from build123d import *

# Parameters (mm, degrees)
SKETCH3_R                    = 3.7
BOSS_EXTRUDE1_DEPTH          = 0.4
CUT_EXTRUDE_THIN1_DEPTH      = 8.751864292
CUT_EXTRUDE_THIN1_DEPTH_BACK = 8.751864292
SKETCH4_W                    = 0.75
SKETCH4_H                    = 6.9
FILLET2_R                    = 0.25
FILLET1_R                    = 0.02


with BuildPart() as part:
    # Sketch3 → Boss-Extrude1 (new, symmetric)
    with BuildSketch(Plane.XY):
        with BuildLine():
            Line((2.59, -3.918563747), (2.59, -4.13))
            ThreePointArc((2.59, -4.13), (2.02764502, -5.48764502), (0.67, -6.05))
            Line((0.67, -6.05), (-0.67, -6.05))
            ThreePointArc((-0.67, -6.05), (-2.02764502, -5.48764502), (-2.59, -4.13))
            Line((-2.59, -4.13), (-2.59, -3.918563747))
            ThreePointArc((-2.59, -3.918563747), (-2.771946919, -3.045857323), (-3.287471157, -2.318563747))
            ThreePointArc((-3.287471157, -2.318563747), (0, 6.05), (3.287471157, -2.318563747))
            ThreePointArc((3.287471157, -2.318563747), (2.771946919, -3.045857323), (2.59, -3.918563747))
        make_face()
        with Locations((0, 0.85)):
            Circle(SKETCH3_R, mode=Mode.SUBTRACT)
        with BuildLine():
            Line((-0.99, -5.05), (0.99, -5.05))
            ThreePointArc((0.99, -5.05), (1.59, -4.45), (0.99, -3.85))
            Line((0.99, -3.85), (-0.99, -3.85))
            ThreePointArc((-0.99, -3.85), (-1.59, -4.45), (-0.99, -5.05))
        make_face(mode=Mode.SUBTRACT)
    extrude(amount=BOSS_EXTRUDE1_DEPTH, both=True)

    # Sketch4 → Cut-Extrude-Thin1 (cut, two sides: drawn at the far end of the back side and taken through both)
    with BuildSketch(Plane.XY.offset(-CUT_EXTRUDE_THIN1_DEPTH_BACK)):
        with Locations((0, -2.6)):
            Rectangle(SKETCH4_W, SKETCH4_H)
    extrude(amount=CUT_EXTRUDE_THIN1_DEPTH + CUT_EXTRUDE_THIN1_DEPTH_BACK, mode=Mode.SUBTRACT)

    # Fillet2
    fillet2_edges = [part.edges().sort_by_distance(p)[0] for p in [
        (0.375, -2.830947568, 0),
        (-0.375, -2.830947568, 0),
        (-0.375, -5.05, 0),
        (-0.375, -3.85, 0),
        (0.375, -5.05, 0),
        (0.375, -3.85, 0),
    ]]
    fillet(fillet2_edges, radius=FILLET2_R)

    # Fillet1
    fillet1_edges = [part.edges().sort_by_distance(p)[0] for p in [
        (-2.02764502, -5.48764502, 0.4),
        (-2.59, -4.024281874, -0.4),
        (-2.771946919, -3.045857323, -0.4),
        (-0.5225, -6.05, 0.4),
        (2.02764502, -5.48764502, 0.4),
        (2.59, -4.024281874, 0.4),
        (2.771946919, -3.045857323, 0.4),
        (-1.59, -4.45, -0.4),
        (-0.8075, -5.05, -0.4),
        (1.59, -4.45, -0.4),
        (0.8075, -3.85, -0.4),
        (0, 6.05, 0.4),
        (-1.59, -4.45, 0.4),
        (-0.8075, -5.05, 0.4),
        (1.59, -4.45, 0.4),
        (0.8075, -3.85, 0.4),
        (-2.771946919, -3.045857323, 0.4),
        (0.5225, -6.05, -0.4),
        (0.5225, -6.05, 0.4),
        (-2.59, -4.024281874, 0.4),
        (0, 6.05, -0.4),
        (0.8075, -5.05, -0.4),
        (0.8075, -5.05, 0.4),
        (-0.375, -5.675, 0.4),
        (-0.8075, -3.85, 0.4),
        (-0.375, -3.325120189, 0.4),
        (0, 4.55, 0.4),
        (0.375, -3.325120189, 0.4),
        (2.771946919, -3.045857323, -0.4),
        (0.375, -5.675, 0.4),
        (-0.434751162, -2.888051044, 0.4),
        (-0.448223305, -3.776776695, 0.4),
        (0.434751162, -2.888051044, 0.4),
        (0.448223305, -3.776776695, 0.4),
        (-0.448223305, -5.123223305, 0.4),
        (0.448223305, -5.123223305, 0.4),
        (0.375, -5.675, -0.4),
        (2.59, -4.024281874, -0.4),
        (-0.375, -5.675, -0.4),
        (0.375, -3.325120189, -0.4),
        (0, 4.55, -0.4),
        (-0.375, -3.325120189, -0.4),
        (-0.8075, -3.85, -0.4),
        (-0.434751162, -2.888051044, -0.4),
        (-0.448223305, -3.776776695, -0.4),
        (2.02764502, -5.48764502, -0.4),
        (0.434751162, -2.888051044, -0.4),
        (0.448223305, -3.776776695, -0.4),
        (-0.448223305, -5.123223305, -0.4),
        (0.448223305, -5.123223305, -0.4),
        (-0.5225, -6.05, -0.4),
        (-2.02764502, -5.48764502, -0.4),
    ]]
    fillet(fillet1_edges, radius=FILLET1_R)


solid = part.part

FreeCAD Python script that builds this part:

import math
import FreeCAD as App
import Part
import Sketcher
from FreeCAD import Vector


def edges_at(feature, points):
    """Names of the edges that pass closest to the given points."""
    edges = feature.Shape.Edges
    near = lambda p: min(range(len(edges)), key=lambda i: edges[i].distToShape(Part.Vertex(*p))[0])
    return sorted({f"Edge{near(p) + 1}" for p in points})


def add_polygon(sketch, points):
    """Adds a closed chain of lines whose ends are joined by coincident constraints."""
    first, n = sketch.GeometryCount, len(points)
    for a, b in zip(points, points[1:] + points[:1]):
        sketch.addGeometry(Part.LineSegment(App.Vector(*a, 0), App.Vector(*b, 0)), False)
    for i in range(n):
        sketch.addConstraint(Sketcher.Constraint("Coincident", first + i, 2, first + (i + 1) % n, 1))

doc = App.newDocument("Part")
body = doc.addObject("PartDesign::Body", "Body")

sketch1 = body.newObject("Sketcher::SketchObject", "Sketch")
sketch1.AttachmentSupport = (doc.getObject("XY_Plane"), [""])
sketch1.MapMode = "FlatFace"
sketch1.addGeometry(Part.LineSegment(Vector(2.59, -4.13, 0), Vector(2.59, -3.92, 0)), False)
sketch1.addGeometry(Part.ArcOfCircle(Part.Circle(Vector(4.77, -3.92, 0), Vector(0, 0, 1), 2.18), math.radians(133), math.radians(180)), False)
sketch1.addGeometry(Part.ArcOfCircle(Part.Circle(Vector(0, 1.22, 0), Vector(0, 0, 1), 4.83), math.radians(-47), math.radians(227)), False)
sketch1.addGeometry(Part.ArcOfCircle(Part.Circle(Vector(-4.77, -3.92, 0), Vector(0, 0, 1), 2.18), math.radians(0), math.radians(47)), False)
sketch1.addGeometry(Part.LineSegment(Vector(-2.59, -3.92, 0), Vector(-2.59, -4.13, 0)), False)
sketch1.addGeometry(Part.ArcOfCircle(Part.Circle(Vector(-0.67, -4.13, 0), Vector(0, 0, 1), 1.92), math.radians(180), math.radians(270)), False)
sketch1.addGeometry(Part.LineSegment(Vector(-0.67, -6.05, 0), Vector(0.67, -6.05, 0)), False)
sketch1.addGeometry(Part.ArcOfCircle(Part.Circle(Vector(0.67, -4.13, 0), Vector(0, 0, 1), 1.92), math.radians(-90), math.radians(0)), False)
sketch1.addGeometry(Part.ArcOfCircle(Part.Circle(Vector(-0.99, -4.45, 0), Vector(0, 0, 1), 0.6), math.radians(90), math.radians(270)), False)
sketch1.addGeometry(Part.LineSegment(Vector(-0.99, -3.85, 0), Vector(0.99, -3.85, 0)), False)
sketch1.addGeometry(Part.ArcOfCircle(Part.Circle(Vector(0.99, -4.45, 0), Vector(0, 0, 1), 0.6), math.radians(-90), math.radians(90)), False)
sketch1.addGeometry(Part.LineSegment(Vector(0.99, -5.05, 0), Vector(-0.99, -5.05, 0)), False)
sketch1.addGeometry(Part.Circle(Vector(0, 0.85, 0), Vector(0, 0, 1), 3.7), False)
sketch1.addConstraint(Sketcher.Constraint("Tangent", 0, 2, 1, 2))
sketch1.addConstraint(Sketcher.Constraint("Tangent", 1, 1, 2, 1))
sketch1.addConstraint(Sketcher.Constraint("Tangent", 2, 2, 3, 2))
sketch1.addConstraint(Sketcher.Constraint("Tangent", 3, 1, 4, 1))
sketch1.addConstraint(Sketcher.Constraint("Tangent", 4, 2, 5, 1))
sketch1.addConstraint(Sketcher.Constraint("Tangent", 5, 2, 6, 1))
sketch1.addConstraint(Sketcher.Constraint("Tangent", 6, 2, 7, 1))
sketch1.addConstraint(Sketcher.Constraint("Tangent", 7, 2, 0, 1))
sketch1.addConstraint(Sketcher.Constraint("Tangent", 8, 1, 9, 1))
sketch1.addConstraint(Sketcher.Constraint("Tangent", 9, 2, 10, 2))
sketch1.addConstraint(Sketcher.Constraint("Tangent", 10, 1, 11, 1))
sketch1.addConstraint(Sketcher.Constraint("Tangent", 11, 2, 8, 2))
sketch1.addConstraint(Sketcher.Constraint("Vertical", 0))
sketch1.addConstraint(Sketcher.Constraint("Vertical", 4))
sketch1.addConstraint(Sketcher.Constraint("Horizontal", 6))
sketch1.addConstraint(Sketcher.Constraint("Horizontal", 9))
sketch1.addConstraint(Sketcher.Constraint("Horizontal", 11))
sketch1.addConstraint(Sketcher.Constraint("Equal", 1, 3))
sketch1.addConstraint(Sketcher.Constraint("Equal", 5, 7))
sketch1.addConstraint(Sketcher.Constraint("Symmetric", 1, 3, 3, 3, -2))
sketch1.addConstraint(Sketcher.Constraint("PointOnObject", 12, 3, -2))
sketch1.addConstraint(Sketcher.Constraint("Diameter", 12, 7.4))
sketch1.addConstraint(Sketcher.Constraint("Radius", 8, 0.6))
sketch1.addConstraint(Sketcher.Constraint("Radius", 2, 4.83))
sketch1.addConstraint(Sketcher.Constraint("Radius", 5, 1.92))
sketch1.addConstraint(Sketcher.Constraint("DistanceY", 6, 2, 10, 1, 1.0))
sketch1.addConstraint(Sketcher.Constraint("DistanceX", 6, 1, 6, 2, 1.34))
sketch1.addConstraint(Sketcher.Constraint("DistanceX", 9, 1, 9, 2, 1.98))
sketch1.addConstraint(Sketcher.Constraint("DistanceY", 8, 3, 12, 3, 5.3))
sketch1.addConstraint(Sketcher.Constraint("DistanceX", 10, 3, 0, 2, 1.6))
sketch1.addConstraint(Sketcher.Constraint("DistanceY", 0, 2, 1, 1, 1.6))
sketch1.addConstraint(Sketcher.Constraint("DistanceY", -1, 1, 2, 3, 1.22))
sketch1.addConstraint(Sketcher.Constraint("DistanceY", 5, 3, -1, 1, 4.13))
pad1 = body.newObject("PartDesign::Pad", "Pad")
pad1.Profile = sketch1
pad1.Length = 0.8
pad1.Midplane = True

sketch2 = body.newObject("Sketcher::SketchObject", "Sketch001")
sketch2.AttachmentSupport = (doc.getObject("XY_Plane"), [""])
sketch2.MapMode = "FlatFace"
add_polygon(sketch2, [(-0.4, 0.8), (-0.4, -6), (0.4, -6), (0.4, 0.8)])
sketch2.addConstraint(Sketcher.Constraint("Vertical", 0))
sketch2.addConstraint(Sketcher.Constraint("Horizontal", 1))
sketch2.addConstraint(Sketcher.Constraint("Vertical", 2))
sketch2.addConstraint(Sketcher.Constraint("Horizontal", 3))
sketch2.addConstraint(Sketcher.Constraint("DistanceY", 0, 2, 0, 1, 6.9))
sketch2.addConstraint(Sketcher.Constraint("DistanceX", 1, 1, 1, 2, 0.75))
sketch2.addConstraint(Sketcher.Constraint("DistanceY", 0, 2, -1, 1, 6.05))
sketch2.addConstraint(Sketcher.Constraint("DistanceX", 0, 2, -1, 1, 0.375))
pocket1 = body.newObject("PartDesign::Pocket", "Pocket")
pocket1.Profile = sketch2
pocket1.Type = "ThroughAll"
pocket1.Midplane = True
doc.recompute()

fillet = body.newObject("PartDesign::Fillet", "Fillet")
fillet.Base = (pocket1, edges_at(pocket1, [
    (0.375, -2.831, 0),
    (-0.375, -2.831, 0),
    (-0.375, -5.05, 0),
    (-0.375, -3.85, 0),
    (0.375, -5.05, 0),
    (0.375, -3.85, 0),
]))
fillet.Radius = 0.25
doc.recompute()

fillet2 = body.newObject("PartDesign::Fillet", "Fillet001")
fillet2.Base = (fillet, edges_at(fillet, [
    (-2.028, -5.488, 0.4),
    (-2.59, -4.024, -0.4),
    (-2.772, -3.046, -0.4),
    (-0.522, -6.05, 0.4),
    (2.028, -5.488, 0.4),
    (2.59, -4.024, 0.4),
    (2.772, -3.046, 0.4),
    (-1.59, -4.45, -0.4),
    (-0.807, -5.05, -0.4),
    (1.59, -4.45, -0.4),
    (0.807, -3.85, -0.4),
    (0, 6.05, 0.4),
    (-1.59, -4.45, 0.4),
    (-0.807, -5.05, 0.4),
    (1.59, -4.45, 0.4),
    (0.807, -3.85, 0.4),
    (-2.772, -3.046, 0.4),
    (0.522, -6.05, -0.4),
    (0.522, -6.05, 0.4),
    (-2.59, -4.024, 0.4),
    (0, 6.05, -0.4),
    (0.807, -5.05, -0.4),
    (0.807, -5.05, 0.4),
    (-0.375, -5.675, 0.4),
    (-0.807, -3.85, 0.4),
    (-0.375, -3.325, 0.4),
    (0, 4.55, 0.4),
    (0.375, -3.325, 0.4),
    (2.772, -3.046, -0.4),
    (0.375, -5.675, 0.4),
    (-0.435, -2.888, 0.4),
    (-0.448, -3.777, 0.4),
    (0.435, -2.888, 0.4),
    (0.448, -3.777, 0.4),
    (-0.448, -5.123, 0.4),
    (0.448, -5.123, 0.4),
    (0.375, -5.675, -0.4),
    (2.59, -4.024, -0.4),
    (-0.375, -5.675, -0.4),
    (0.375, -3.325, -0.4),
    (0, 4.55, -0.4),
    (-0.375, -3.325, -0.4),
    (-0.807, -3.85, -0.4),
    (-0.435, -2.888, -0.4),
    (-0.448, -3.777, -0.4),
    (2.028, -5.488, -0.4),
    (0.435, -2.888, -0.4),
    (0.448, -3.777, -0.4),
    (-0.448, -5.123, -0.4),
    (0.448, -5.123, -0.4),
    (-0.522, -6.05, -0.4),
    (-2.028, -5.488, -0.4),
]))
fillet2.Radius = 0.02

doc.recompute()
